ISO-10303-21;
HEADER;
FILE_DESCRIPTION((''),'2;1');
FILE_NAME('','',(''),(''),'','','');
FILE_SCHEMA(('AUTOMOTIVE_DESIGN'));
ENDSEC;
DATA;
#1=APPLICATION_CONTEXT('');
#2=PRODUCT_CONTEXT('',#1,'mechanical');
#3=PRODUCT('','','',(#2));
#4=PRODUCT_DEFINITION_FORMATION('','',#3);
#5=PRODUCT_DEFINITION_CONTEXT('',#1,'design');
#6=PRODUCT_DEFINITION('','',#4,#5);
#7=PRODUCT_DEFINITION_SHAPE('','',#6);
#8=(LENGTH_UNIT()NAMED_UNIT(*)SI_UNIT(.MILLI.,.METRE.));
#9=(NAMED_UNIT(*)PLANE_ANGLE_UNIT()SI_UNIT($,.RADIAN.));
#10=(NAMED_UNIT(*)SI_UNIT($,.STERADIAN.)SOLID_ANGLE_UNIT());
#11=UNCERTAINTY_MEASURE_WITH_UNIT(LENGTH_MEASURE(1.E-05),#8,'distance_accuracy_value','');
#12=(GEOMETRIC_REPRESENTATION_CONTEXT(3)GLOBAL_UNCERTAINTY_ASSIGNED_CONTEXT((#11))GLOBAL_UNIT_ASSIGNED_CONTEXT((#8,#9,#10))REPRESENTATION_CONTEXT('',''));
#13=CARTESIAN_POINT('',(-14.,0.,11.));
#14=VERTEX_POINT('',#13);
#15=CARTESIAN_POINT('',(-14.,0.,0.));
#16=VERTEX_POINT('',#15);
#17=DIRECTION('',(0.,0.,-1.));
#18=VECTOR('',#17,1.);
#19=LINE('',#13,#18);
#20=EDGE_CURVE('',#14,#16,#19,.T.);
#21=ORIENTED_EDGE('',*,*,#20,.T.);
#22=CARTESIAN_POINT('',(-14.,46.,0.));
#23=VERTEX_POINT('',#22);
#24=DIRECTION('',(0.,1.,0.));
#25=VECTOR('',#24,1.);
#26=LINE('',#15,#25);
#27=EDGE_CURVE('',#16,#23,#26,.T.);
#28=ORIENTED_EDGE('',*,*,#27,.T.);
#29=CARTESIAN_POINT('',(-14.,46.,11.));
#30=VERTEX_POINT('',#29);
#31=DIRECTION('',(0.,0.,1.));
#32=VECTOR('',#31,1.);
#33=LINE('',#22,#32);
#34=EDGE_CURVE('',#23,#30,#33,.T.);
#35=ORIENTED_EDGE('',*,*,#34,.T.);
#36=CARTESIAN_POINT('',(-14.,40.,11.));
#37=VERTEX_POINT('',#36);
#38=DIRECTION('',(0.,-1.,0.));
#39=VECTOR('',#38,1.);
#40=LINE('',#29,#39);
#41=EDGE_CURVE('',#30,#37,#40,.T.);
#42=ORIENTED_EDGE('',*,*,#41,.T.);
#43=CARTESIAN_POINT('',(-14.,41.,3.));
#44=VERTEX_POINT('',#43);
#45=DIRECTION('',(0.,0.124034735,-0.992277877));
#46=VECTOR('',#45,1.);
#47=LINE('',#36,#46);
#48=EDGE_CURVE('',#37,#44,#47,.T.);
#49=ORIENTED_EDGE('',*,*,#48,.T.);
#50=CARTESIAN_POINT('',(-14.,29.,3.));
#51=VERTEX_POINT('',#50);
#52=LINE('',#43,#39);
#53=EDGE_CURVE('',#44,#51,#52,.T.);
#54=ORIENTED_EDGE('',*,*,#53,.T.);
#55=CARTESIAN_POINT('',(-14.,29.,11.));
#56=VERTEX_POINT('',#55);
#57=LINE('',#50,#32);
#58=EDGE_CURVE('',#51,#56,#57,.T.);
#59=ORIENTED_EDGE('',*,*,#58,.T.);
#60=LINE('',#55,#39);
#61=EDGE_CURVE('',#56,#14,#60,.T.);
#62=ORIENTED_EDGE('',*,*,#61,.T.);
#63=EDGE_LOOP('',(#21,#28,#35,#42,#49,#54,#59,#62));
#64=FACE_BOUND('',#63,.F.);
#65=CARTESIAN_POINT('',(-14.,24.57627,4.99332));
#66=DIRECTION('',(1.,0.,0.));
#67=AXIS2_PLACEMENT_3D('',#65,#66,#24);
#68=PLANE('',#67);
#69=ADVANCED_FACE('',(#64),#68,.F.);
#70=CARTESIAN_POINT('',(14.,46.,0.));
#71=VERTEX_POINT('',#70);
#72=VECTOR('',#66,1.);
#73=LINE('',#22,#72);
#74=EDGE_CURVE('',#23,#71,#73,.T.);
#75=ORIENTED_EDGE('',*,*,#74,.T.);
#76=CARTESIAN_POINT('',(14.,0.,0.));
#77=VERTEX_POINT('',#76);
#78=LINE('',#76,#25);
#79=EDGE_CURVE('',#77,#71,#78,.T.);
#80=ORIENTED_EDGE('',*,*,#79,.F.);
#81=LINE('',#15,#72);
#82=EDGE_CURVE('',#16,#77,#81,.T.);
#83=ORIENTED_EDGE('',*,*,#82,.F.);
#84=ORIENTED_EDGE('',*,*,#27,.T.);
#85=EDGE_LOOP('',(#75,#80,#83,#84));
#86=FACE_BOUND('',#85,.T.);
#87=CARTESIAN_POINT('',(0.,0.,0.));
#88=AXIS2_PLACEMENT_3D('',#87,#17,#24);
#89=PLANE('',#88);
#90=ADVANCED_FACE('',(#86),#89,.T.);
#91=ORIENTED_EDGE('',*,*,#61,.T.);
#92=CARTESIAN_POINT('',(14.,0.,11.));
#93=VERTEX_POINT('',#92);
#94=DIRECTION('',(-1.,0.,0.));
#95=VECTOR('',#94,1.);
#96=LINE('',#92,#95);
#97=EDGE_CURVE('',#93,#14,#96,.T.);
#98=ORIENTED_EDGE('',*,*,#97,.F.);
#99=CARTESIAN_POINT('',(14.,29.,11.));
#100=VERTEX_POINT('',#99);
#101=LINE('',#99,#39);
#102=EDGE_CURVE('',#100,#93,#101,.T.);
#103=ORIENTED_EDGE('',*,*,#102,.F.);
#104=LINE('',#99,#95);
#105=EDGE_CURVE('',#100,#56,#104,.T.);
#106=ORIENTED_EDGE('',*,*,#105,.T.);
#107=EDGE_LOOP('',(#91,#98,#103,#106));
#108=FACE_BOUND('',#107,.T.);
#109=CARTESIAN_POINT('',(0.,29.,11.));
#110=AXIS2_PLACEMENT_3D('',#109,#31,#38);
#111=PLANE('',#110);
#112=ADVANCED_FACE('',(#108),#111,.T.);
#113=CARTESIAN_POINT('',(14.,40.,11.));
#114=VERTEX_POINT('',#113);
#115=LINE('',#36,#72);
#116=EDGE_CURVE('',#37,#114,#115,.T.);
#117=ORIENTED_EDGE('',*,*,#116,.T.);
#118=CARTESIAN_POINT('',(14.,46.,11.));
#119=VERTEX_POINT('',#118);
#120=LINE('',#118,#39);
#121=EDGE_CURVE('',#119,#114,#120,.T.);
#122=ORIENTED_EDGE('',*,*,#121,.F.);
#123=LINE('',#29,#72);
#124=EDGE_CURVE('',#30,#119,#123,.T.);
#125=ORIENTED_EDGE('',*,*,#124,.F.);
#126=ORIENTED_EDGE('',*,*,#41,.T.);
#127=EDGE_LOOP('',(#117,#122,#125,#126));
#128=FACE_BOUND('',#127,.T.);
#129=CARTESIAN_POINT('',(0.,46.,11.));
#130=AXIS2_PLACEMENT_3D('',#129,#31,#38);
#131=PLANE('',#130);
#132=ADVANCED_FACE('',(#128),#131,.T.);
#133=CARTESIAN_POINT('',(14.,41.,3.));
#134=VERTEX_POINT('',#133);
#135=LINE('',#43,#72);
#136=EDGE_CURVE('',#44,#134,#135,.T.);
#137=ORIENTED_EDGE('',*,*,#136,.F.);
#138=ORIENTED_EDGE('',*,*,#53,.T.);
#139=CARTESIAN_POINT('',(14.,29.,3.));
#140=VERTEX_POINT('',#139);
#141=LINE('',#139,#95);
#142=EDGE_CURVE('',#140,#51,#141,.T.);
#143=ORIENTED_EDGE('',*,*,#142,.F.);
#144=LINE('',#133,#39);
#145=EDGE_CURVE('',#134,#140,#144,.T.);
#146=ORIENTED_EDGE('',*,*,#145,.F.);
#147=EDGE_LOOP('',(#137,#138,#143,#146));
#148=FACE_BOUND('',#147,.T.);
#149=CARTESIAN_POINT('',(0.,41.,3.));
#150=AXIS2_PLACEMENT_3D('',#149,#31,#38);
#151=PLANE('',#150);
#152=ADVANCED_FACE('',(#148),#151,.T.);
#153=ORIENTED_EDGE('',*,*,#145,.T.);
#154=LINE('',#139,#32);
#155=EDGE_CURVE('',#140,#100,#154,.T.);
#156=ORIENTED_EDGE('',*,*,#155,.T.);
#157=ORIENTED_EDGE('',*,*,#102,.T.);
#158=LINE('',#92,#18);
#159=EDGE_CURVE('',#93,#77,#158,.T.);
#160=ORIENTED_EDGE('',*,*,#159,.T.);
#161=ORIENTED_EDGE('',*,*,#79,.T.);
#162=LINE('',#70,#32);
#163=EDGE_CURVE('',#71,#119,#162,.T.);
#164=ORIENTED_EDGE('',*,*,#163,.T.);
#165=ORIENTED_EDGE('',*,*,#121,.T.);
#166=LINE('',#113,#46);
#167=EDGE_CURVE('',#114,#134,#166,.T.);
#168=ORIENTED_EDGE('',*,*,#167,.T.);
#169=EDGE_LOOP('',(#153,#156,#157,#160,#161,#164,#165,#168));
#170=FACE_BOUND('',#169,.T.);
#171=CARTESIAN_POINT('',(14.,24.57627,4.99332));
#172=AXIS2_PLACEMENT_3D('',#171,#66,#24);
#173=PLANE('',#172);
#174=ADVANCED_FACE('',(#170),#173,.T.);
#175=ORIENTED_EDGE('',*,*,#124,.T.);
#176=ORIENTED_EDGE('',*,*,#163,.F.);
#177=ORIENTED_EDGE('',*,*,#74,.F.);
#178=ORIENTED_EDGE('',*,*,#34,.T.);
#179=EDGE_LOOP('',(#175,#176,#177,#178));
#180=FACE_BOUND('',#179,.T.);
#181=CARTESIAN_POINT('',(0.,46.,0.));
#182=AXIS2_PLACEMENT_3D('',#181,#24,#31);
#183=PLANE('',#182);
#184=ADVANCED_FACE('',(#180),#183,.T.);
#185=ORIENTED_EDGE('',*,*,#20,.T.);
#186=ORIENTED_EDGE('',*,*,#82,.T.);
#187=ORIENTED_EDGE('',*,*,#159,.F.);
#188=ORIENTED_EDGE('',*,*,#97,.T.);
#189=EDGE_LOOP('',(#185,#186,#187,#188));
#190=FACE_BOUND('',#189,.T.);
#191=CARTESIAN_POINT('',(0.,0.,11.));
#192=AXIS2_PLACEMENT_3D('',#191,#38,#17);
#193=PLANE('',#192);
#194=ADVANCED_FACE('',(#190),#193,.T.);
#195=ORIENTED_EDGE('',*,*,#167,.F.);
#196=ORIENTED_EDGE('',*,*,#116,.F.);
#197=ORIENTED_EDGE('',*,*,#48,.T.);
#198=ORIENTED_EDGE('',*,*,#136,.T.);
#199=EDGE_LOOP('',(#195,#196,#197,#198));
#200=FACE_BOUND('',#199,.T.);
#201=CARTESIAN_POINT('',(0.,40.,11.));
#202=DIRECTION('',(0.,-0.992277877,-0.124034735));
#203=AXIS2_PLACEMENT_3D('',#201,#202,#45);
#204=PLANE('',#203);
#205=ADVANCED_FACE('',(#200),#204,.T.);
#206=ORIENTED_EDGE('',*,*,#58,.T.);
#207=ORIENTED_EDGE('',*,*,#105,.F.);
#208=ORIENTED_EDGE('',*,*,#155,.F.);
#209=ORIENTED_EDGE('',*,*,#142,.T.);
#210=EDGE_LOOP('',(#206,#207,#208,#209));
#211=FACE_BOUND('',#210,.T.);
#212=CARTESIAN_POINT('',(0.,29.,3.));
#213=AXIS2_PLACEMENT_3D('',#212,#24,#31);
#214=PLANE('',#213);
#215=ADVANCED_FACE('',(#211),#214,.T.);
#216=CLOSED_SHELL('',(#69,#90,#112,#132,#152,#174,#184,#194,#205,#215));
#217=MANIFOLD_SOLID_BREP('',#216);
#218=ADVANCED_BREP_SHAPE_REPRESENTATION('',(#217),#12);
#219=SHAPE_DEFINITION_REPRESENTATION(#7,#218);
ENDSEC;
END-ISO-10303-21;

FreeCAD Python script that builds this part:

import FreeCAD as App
import Part
import Sketcher
from FreeCAD import Vector
Q = App.Units.Quantity

doc = App.newDocument("Part")
body = doc.addObject("PartDesign::Body", "Body")

# Sketch on YZ plane
sketch1 = body.newObject("Sketcher::SketchObject", "Sketch")
sketch1.AttachmentSupport = (doc.getObject("YZ_Plane"), [""])
sketch1.MapMode = "FlatFace"
sketch1.addGeometry([
    Part.LineSegment(Vector(0, 11, 0), Vector(0, 0, 0)),  # 0
    Part.LineSegment(Vector(0, 0, 0), Vector(46, 0, 0)),  # 1
    Part.LineSegment(Vector(46, 0, 0), Vector(46, 11, 0)),  # 2
    Part.LineSegment(Vector(46, 11, 0), Vector(40, 11, 0)),  # 3
    Part.LineSegment(Vector(40, 11, 0), Vector(41, 3, 0)),  # 4
    Part.LineSegment(Vector(41, 3, 0), Vector(29, 3, 0)),  # 5
    Part.LineSegment(Vector(29, 3, 0), Vector(29, 11, 0)),  # 6
    Part.LineSegment(Vector(29, 11, 0), Vector(0, 11, 0)),  # 7
], False)
sketch1.addConstraint([
    Sketcher.Constraint("Coincident", 0, 2, 1, 1),
    Sketcher.Constraint("Coincident", 1, 2, 2, 1),
    Sketcher.Constraint("Coincident", 2, 2, 3, 1),
    Sketcher.Constraint("Coincident", 3, 2, 4, 1),
    Sketcher.Constraint("Coincident", 4, 2, 5, 1),
    Sketcher.Constraint("Coincident", 5, 2, 6, 1),
    Sketcher.Constraint("Coincident", 6, 2, 7, 1),
    Sketcher.Constraint("Coincident", 7, 2, 0, 1),
    Sketcher.Constraint("Vertical", 0),
    Sketcher.Constraint("Horizontal", 1),
    Sketcher.Constraint("Vertical", 2),
    Sketcher.Constraint("Horizontal", 3),
    Sketcher.Constraint("Horizontal", 5),
    Sketcher.Constraint("Vertical", 6),
    Sketcher.Constraint("Horizontal", 7),
    Sketcher.Constraint("Coincident", 0, 2, -1, 1),
    Sketcher.Constraint("Horizontal", 3, 2, 6, 2),
    Sketcher.Constraint("DistanceX", 1, 1, 1, 2, Q("46 mm")),
    Sketcher.Constraint("DistanceX", 3, 2, 3, 1, Q("6 mm")),
    Sketcher.Constraint("DistanceX", 5, 2, 5, 1, Q("12 mm")),
    Sketcher.Constraint("DistanceX", 7, 2, 7, 1, Q("29 mm")),
    Sketcher.Constraint("DistanceY", 0, 2, 0, 1, Q("11 mm")),
    Sketcher.Constraint("DistanceY", 6, 1, 6, 2, Q("8 mm")),
])
pad1 = body.newObject("PartDesign::Pad", "Pad")
pad1.Profile = sketch1
pad1.Length = 28
pad1.Midplane = True

doc.recompute()
